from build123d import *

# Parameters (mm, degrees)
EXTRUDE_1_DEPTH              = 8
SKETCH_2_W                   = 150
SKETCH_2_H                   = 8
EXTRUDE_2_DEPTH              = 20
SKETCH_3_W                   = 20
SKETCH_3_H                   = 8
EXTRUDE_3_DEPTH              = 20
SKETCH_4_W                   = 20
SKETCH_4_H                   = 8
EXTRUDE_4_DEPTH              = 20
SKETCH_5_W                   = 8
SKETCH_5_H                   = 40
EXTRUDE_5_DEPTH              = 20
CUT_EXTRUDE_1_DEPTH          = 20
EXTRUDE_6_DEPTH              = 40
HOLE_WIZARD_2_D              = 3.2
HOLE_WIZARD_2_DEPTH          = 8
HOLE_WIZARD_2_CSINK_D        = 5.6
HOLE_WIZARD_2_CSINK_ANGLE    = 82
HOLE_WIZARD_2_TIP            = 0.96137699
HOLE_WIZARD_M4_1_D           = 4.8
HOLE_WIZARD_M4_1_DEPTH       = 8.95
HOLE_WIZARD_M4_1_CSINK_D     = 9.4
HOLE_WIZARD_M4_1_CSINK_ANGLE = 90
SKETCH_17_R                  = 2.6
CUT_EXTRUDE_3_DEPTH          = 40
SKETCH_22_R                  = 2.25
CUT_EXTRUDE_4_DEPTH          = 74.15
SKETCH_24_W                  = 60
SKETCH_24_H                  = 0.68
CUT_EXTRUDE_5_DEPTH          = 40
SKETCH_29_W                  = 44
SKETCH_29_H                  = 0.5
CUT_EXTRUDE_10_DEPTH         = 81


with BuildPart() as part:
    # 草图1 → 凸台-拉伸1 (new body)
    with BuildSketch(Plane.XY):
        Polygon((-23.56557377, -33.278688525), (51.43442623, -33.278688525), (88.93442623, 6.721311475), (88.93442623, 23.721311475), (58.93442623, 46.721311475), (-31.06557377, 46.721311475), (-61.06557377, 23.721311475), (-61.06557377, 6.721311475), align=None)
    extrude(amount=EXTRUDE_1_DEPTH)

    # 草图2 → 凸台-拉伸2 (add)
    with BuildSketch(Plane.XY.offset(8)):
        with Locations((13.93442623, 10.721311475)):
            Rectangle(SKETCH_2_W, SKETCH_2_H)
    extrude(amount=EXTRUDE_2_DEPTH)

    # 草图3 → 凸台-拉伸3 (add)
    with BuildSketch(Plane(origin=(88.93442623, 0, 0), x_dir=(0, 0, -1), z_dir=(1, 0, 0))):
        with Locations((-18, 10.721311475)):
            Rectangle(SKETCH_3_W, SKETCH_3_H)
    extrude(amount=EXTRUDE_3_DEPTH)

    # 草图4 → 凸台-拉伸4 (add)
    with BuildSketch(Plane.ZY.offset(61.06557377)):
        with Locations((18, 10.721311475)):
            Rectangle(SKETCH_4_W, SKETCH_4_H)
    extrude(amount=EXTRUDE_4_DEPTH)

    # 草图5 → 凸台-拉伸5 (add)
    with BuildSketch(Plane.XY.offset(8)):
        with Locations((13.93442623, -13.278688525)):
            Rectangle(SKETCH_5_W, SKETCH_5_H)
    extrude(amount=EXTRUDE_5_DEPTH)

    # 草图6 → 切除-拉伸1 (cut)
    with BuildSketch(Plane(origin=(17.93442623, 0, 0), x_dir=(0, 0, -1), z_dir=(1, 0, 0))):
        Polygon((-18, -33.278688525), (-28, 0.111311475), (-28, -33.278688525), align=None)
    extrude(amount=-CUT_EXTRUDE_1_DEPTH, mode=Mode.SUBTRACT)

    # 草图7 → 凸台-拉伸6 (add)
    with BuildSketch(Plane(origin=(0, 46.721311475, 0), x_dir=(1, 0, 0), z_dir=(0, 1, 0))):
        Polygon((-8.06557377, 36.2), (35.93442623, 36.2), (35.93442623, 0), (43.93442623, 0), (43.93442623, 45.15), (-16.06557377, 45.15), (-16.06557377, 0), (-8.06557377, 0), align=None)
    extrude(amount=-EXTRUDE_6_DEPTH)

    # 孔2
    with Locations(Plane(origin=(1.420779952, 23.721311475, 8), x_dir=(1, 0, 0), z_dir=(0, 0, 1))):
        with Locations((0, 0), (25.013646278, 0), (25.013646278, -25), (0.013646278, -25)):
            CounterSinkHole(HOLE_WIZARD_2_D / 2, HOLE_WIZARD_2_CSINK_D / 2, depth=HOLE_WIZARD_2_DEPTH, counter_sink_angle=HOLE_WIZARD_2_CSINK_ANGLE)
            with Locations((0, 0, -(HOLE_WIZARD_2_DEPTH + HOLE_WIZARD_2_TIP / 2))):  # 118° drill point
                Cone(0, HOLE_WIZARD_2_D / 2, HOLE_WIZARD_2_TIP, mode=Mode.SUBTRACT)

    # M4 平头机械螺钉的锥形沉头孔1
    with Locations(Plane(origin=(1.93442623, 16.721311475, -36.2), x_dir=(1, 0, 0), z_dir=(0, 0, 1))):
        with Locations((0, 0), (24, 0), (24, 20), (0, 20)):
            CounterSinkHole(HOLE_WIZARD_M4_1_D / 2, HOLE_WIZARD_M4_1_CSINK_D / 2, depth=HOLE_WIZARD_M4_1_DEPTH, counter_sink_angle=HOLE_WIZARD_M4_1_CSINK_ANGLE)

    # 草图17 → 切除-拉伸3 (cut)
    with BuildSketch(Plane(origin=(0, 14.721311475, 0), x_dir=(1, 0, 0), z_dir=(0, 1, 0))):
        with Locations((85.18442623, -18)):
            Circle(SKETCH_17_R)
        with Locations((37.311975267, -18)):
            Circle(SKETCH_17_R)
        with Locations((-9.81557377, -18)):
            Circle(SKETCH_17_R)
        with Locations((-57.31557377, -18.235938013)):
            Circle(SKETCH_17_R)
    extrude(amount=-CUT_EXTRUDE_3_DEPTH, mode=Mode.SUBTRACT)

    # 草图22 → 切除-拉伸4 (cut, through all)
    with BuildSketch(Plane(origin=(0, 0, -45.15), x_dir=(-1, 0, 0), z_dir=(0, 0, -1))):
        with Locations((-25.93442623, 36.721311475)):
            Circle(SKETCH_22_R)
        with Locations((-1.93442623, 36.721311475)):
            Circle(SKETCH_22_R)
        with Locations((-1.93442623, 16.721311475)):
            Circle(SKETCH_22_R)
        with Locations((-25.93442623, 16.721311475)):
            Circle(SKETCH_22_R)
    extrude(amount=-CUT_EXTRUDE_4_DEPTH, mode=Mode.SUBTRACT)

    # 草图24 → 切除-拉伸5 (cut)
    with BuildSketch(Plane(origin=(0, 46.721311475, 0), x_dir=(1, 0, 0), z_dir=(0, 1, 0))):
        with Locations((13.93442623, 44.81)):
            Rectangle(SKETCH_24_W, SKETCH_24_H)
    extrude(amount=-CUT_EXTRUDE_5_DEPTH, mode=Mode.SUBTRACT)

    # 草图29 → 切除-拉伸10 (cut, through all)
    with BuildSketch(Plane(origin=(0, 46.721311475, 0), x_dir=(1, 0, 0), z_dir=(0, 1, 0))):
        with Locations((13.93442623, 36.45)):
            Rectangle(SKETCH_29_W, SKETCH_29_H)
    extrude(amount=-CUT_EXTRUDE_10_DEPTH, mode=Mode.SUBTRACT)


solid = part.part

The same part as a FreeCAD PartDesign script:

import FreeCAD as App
import Part
import Sketcher

doc = App.newDocument("Part")
params = doc.addObject("Spreadsheet::Sheet", "Params")
for row, (alias, value) in enumerate([
    ("sketch1_width", "75 mm"),
    ("sketch1_width2", "90 mm"),
    ("sketch1_height", "17 mm"),
    ("pad1_length", "8 mm"),
    ("sketch2_width", "150 mm"),
    ("sketch2_height", "8 mm"),
    ("pad2_length", "20 mm"),
    ("sketch3_width", "8 mm"),
    ("sketch3_height", "20 mm"),
    ("pad3_length", "20 mm"),
    ("sketch4_width", "8 mm"),
    ("sketch4_height", "20 mm"),
    ("pad4_length", "20 mm"),
    ("sketch5_width", "8 mm"),
    ("sketch5_height", "40 mm"),
    ("pad5_length", "20 mm"),
    ("sketch6_height", "10 mm"),
    ("sketch6_width", "33.39 mm"),
    ("pocket1_length", "20 mm"),
    ("sketch7_width", "44 mm"),
    ("sketch7_width2", "8 mm"),
    ("sketch7_height", "36.2 mm"),
    ("sketch7_height2", "45.15 mm"),
    ("pad6_length", "40 mm"),
    ("sketch8_diameter", "3.2 mm"),
    ("hole_diameter", "3.2 mm"),
    ("hole_depth", "8 mm"),
    ("hole_csink_diameter", "5.6 mm"),
    ("sketch9_diameter", "4.8 mm"),
    ("hole2_diameter", "4.8 mm"),
    ("hole2_depth", "8.95 mm"),
    ("hole2_csink_diameter", "9.4 mm"),
    ("sketch10_diameter", "5.2 mm"),
    ("pocket2_length", "40 mm"),
    ("sketch11_diameter", "4.5 mm"),
    ("sketch12_width", "60 mm"),
    ("sketch12_height", "0.68 mm"),
    ("pocket4_length", "40 mm"),
    ("sketch13_width", "44 mm"),
    ("sketch13_height", "0.5 mm"),
], start=1):
    params.set(f"A{row}", alias)
    params.set(f"B{row}", "=" + value)
    params.setAlias(f"B{row}", alias)

body = doc.addObject("PartDesign::Body", "Body")

sketch1 = body.newObject("Sketcher::SketchObject", "Sketch")
sketch1.AttachmentSupport = (doc.getObject("XY_Plane"), [""])
sketch1.MapMode = "FlatFace"
sketch1.addGeometry(Part.LineSegment(App.Vector(-23.565574, -33.278689, 0), App.Vector(51.434426, -33.278689, 0)), False)
sketch1.addGeometry(Part.LineSegment(App.Vector(51.434426, -33.278689, 0), App.Vector(88.934426, 6.721311, 0)), False)
sketch1.addGeometry(Part.LineSegment(App.Vector(88.934426, 6.721311, 0), App.Vector(88.934426, 23.721311, 0)), False)
sketch1.addGeometry(Part.LineSegment(App.Vector(88.934426, 23.721311, 0), App.Vector(58.934426, 46.721311, 0)), False)
sketch1.addGeometry(Part.LineSegment(App.Vector(58.934426, 46.721311, 0), App.Vector(-31.065574, 46.721311, 0)), False)
sketch1.addGeometry(Part.LineSegment(App.Vector(-31.065574, 46.721311, 0), App.Vector(-61.065574, 23.721311, 0)), False)
sketch1.addGeometry(Part.LineSegment(App.Vector(-61.065574, 23.721311, 0), App.Vector(-61.065574, 6.721311, 0)), False)
sketch1.addGeometry(Part.LineSegment(App.Vector(-61.065574, 6.721311, 0), App.Vector(-23.565574, -33.278689, 0)), False)
sketch1.addConstraint(Sketcher.Constraint("Coincident", 0, 2, 1, 1))
sketch1.addConstraint(Sketcher.Constraint("Coincident", 1, 2, 2, 1))
sketch1.addConstraint(Sketcher.Constraint("Coincident", 2, 2, 3, 1))
sketch1.addConstraint(Sketcher.Constraint("Coincident", 3, 2, 4, 1))
sketch1.addConstraint(Sketcher.Constraint("Coincident", 4, 2, 5, 1))
sketch1.addConstraint(Sketcher.Constraint("Coincident", 5, 2, 6, 1))
sketch1.addConstraint(Sketcher.Constraint("Coincident", 6, 2, 7, 1))
sketch1.addConstraint(Sketcher.Constraint("Coincident", 7, 2, 0, 1))
sketch1.addConstraint(Sketcher.Constraint("Horizontal", 0))
sketch1.addConstraint(Sketcher.Constraint("Vertical", 2))
sketch1.addConstraint(Sketcher.Constraint("Horizontal", 4))
sketch1.addConstraint(Sketcher.Constraint("Vertical", 6))
sketch1.addConstraint(Sketcher.Constraint("Horizontal", 2, 2, 5, 2))
sketch1.addConstraint(Sketcher.Constraint("Horizontal", 1, 2, 6, 2))
sketch1.addConstraint(Sketcher.Constraint("Equal", 3, 5))
sketch1.addConstraint(Sketcher.Constraint("Equal", 1, 7))
sketch1.addConstraint(Sketcher.Constraint("DistanceX", 0, 1, 0, 2, 75.0))
sketch1.addConstraint(Sketcher.Constraint("DistanceX", 4, 2, 4, 1, 90.0))
sketch1.addConstraint(Sketcher.Constraint("DistanceY", 2, 1, 2, 2, 17.0))
sketch1.addConstraint(Sketcher.Constraint("DistanceY", 0, 2, 1, 2, 40.0))
sketch1.addConstraint(Sketcher.Constraint("DistanceX", 3, 2, 2, 2, 30.0))
sketch1.addConstraint(Sketcher.Constraint("DistanceY", 2, 2, 3, 2, 23.0))
sketch1.addConstraint(Sketcher.Constraint("DistanceY", 0, 2, -1, 1, 33.278689))
sketch1.addConstraint(Sketcher.Constraint("DistanceX", -1, 1, 0, 2, 51.434426))
sketch1.setExpression("Constraints[16]", "Params.sketch1_width")
sketch1.setExpression("Constraints[17]", "Params.sketch1_width2")
sketch1.setExpression("Constraints[18]", "Params.sketch1_height")
pad1 = body.newObject("PartDesign::Pad", "Pad")
pad1.Profile = sketch1
pad1.setExpression("Length", "Params.pad1_length")

sketch2 = body.newObject("Sketcher::SketchObject", "Sketch001")
sketch2.AttachmentSupport = (doc.getObject("XY_Plane"), [""])
sketch2.MapMode = "FlatFace"
sketch2.AttachmentOffset = App.Placement(App.Vector(0, 0, 8), App.Rotation())
sketch2.addGeometry(Part.LineSegment(App.Vector(-61.065574, 14.721311, 0), App.Vector(-61.065574, 6.721311, 0)), False)
sketch2.addGeometry(Part.LineSegment(App.Vector(-61.065574, 6.721311, 0), App.Vector(88.934426, 6.721311, 0)), False)
sketch2.addGeometry(Part.LineSegment(App.Vector(88.934426, 6.721311, 0), App.Vector(88.934426, 14.721311, 0)), False)
sketch2.addGeometry(Part.LineSegment(App.Vector(88.934426, 14.721311, 0), App.Vector(-61.065574, 14.721311, 0)), False)
sketch2.addConstraint(Sketcher.Constraint("Coincident", 0, 2, 1, 1))
sketch2.addConstraint(Sketcher.Constraint("Coincident", 1, 2, 2, 1))
sketch2.addConstraint(Sketcher.Constraint("Coincident", 2, 2, 3, 1))
sketch2.addConstraint(Sketcher.Constraint("Coincident", 3, 2, 0, 1))
sketch2.addConstraint(Sketcher.Constraint("Vertical", 0))
sketch2.addConstraint(Sketcher.Constraint("Horizontal", 1))
sketch2.addConstraint(Sketcher.Constraint("Vertical", 2))
sketch2.addConstraint(Sketcher.Constraint("Horizontal", 3))
sketch2.addConstraint(Sketcher.Constraint("DistanceX", 1, 1, 1, 2, 150.0))
sketch2.addConstraint(Sketcher.Constraint("DistanceY", 0, 2, 0, 1, 8.0))
sketch2.addConstraint(Sketcher.Constraint("DistanceY", -1, 1, 0, 2, 6.721311))
sketch2.addConstraint(Sketcher.Constraint("DistanceX", 0, 2, -1, 1, 61.065574))
sketch2.setExpression("Constraints[8]", "Params.sketch2_width")
sketch2.setExpression("Constraints[9]", "Params.sketch2_height")
pad2 = body.newObject("PartDesign::Pad", "Pad001")
pad2.Profile = sketch2
pad2.setExpression("Length", "Params.pad2_length")

sketch3 = body.newObject("Sketcher::SketchObject", "Sketch002")
sketch3.AttachmentSupport = (doc.getObject("YZ_Plane"), [""])
sketch3.MapMode = "FlatFace"
sketch3.AttachmentOffset = App.Placement(App.Vector(0, 0, 88.934426), App.Rotation())
sketch3.addGeometry(Part.LineSegment(App.Vector(14.721311, 28, 0), App.Vector(6.721311, 28, 0)), False)
sketch3.addGeometry(Part.LineSegment(App.Vector(6.721311, 28, 0), App.Vector(6.721311, 8, 0)), False)
sketch3.addGeometry(Part.LineSegment(App.Vector(6.721311, 8, 0), App.Vector(14.721311, 8, 0)), False)
sketch3.addGeometry(Part.LineSegment(App.Vector(14.721311, 8, 0), App.Vector(14.721311, 28, 0)), False)
sketch3.addConstraint(Sketcher.Constraint("Coincident", 0, 2, 1, 1))
sketch3.addConstraint(Sketcher.Constraint("Coincident", 1, 2, 2, 1))
sketch3.addConstraint(Sketcher.Constraint("Coincident", 2, 2, 3, 1))
sketch3.addConstraint(Sketcher.Constraint("Coincident", 3, 2, 0, 1))
sketch3.addConstraint(Sketcher.Constraint("Horizontal", 0))
sketch3.addConstraint(Sketcher.Constraint("Vertical", 1))
sketch3.addConstraint(Sketcher.Constraint("Horizontal", 2))
sketch3.addConstraint(Sketcher.Constraint("Vertical", 3))
sketch3.addConstraint(Sketcher.Constraint("DistanceX", 0, 2, 0, 1, 8.0))
sketch3.addConstraint(Sketcher.Constraint("DistanceY", 1, 2, 1, 1, 20.0))
sketch3.addConstraint(Sketcher.Constraint("DistanceY", -1, 1, 0, 2, 28.0))
sketch3.addConstraint(Sketcher.Constraint("DistanceX", -1, 1, 0, 2, 6.721311))
sketch3.setExpression("Constraints[8]", "Params.sketch3_width")
sketch3.setExpression("Constraints[9]", "Params.sketch3_height")
pad3 = body.newObject("PartDesign::Pad", "Pad002")
pad3.Profile = sketch3
pad3.setExpression("Length", "Params.pad3_length")

sketch4 = body.newObject("Sketcher::SketchObject", "Sketch003")
sketch4.AttachmentSupport = (doc.getObject("YZ_Plane"), [""])
sketch4.MapMode = "FlatFace"
sketch4.AttachmentOffset = App.Placement(App.Vector(0, 0, -61.065574), App.Rotation())
sketch4.addGeometry(Part.LineSegment(App.Vector(14.721311, 8, 0), App.Vector(6.721311, 8, 0)), False)
sketch4.addGeometry(Part.LineSegment(App.Vector(6.721311, 8, 0), App.Vector(6.721311, 28, 0)), False)
sketch4.addGeometry(Part.LineSegment(App.Vector(6.721311, 28, 0), App.Vector(14.721311, 28, 0)), False)
sketch4.addGeometry(Part.LineSegment(App.Vector(14.721311, 28, 0), App.Vector(14.721311, 8, 0)), False)
sketch4.addConstraint(Sketcher.Constraint("Coincident", 0, 2, 1, 1))
sketch4.addConstraint(Sketcher.Constraint("Coincident", 1, 2, 2, 1))
sketch4.addConstraint(Sketcher.Constraint("Coincident", 2, 2, 3, 1))
sketch4.addConstraint(Sketcher.Constraint("Coincident", 3, 2, 0, 1))
sketch4.addConstraint(Sketcher.Constraint("Horizontal", 0))
sketch4.addConstraint(Sketcher.Constraint("Vertical", 1))
sketch4.addConstraint(Sketcher.Constraint("Horizontal", 2))
sketch4.addConstraint(Sketcher.Constraint("Vertical", 3))
sketch4.addConstraint(Sketcher.Constraint("DistanceX", 0, 2, 0, 1, 8.0))
sketch4.addConstraint(Sketcher.Constraint("DistanceY", 1, 1, 1, 2, 20.0))
sketch4.addConstraint(Sketcher.Constraint("DistanceY", -1, 1, 0, 2, 8.0))
sketch4.addConstraint(Sketcher.Constraint("DistanceX", -1, 1, 0, 2, 6.721311))
sketch4.setExpression("Constraints[8]", "Params.sketch4_width")
sketch4.setExpression("Constraints[9]", "Params.sketch4_height")
pad4 = body.newObject("PartDesign::Pad", "Pad003")
pad4.Profile = sketch4
pad4.setExpression("Length", "Params.pad4_length")
pad4.Reversed = True

sketch5 = body.newObject("Sketcher::SketchObject", "Sketch004")
sketch5.AttachmentSupport = (doc.getObject("XY_Plane"), [""])
sketch5.MapMode = "FlatFace"
sketch5.AttachmentOffset = App.Placement(App.Vector(0, 0, 8), App.Rotation())
sketch5.addGeometry(Part.LineSegment(App.Vector(9.934426, 6.721311, 0), App.Vector(9.934426, -33.278689, 0)), False)
sketch5.addGeometry(Part.LineSegment(App.Vector(9.934426, -33.278689, 0), App.Vector(17.934426, -33.278689, 0)), False)
sketch5.addGeometry(Part.LineSegment(App.Vector(17.934426, -33.278689, 0), App.Vector(17.934426, 6.721311, 0)), False)
sketch5.addGeometry(Part.LineSegment(App.Vector(17.934426, 6.721311, 0), App.Vector(9.934426, 6.721311, 0)), False)
sketch5.addConstraint(Sketcher.Constraint("Coincident", 0, 2, 1, 1))
sketch5.addConstraint(Sketcher.Constraint("Coincident", 1, 2, 2, 1))
sketch5.addConstraint(Sketcher.Constraint("Coincident", 2, 2, 3, 1))
sketch5.addConstraint(Sketcher.Constraint("Coincident", 3, 2, 0, 1))
sketch5.addConstraint(Sketcher.Constraint("Vertical", 0))
sketch5.addConstraint(Sketcher.Constraint("Horizontal", 1))
sketch5.addConstraint(Sketcher.Constraint("Vertical", 2))
sketch5.addConstraint(Sketcher.Constraint("Horizontal", 3))
sketch5.addConstraint(Sketcher.Constraint("DistanceX", 1, 1, 1, 2, 8.0))
sketch5.addConstraint(Sketcher.Constraint("DistanceY", 0, 2, 0, 1, 40.0))
sketch5.addConstraint(Sketcher.Constraint("DistanceY", 0, 2, -1, 1, 33.278689))
sketch5.addConstraint(Sketcher.Constraint("DistanceX", -1, 1, 0, 2, 9.934426))
sketch5.setExpression("Constraints[8]", "Params.sketch5_width")
sketch5.setExpression("Constraints[9]", "Params.sketch5_height")
pad5 = body.newObject("PartDesign::Pad", "Pad004")
pad5.Profile = sketch5
pad5.setExpression("Length", "Params.pad5_length")

sketch6 = body.newObject("Sketcher::SketchObject", "Sketch005")
sketch6.AttachmentSupport = (doc.getObject("YZ_Plane"), [""])
sketch6.MapMode = "FlatFace"
sketch6.AttachmentOffset = App.Placement(App.Vector(0, 0, 17.934426), App.Rotation())
sketch6.addGeometry(Part.LineSegment(App.Vector(-33.278689, 18, 0), App.Vector(0.111311, 28, 0)), False)
sketch6.addGeometry(Part.LineSegment(App.Vector(0.111311, 28, 0), App.Vector(-33.278689, 28, 0)), False)
sketch6.addGeometry(Part.LineSegment(App.Vector(-33.278689, 28, 0), App.Vector(-33.278689, 18, 0)), False)
sketch6.addConstraint(Sketcher.Constraint("Coincident", 0, 2, 1, 1))
sketch6.addConstraint(Sketcher.Constraint("Coincident", 1, 2, 2, 1))
sketch6.addConstraint(Sketcher.Constraint("Coincident", 2, 2, 0, 1))
sketch6.addConstraint(Sketcher.Constraint("Horizontal", 1))
sketch6.addConstraint(Sketcher.Constraint("Vertical", 2))
sketch6.addConstraint(Sketcher.Constraint("DistanceY", 2, 2, 2, 1, 10.0))
sketch6.addConstraint(Sketcher.Constraint("DistanceY", -1, 1, 0, 2, 28.0))
sketch6.addConstraint(Sketcher.Constraint("DistanceX", 1, 2, 1, 1, 33.39))
sketch6.addConstraint(Sketcher.Constraint("DistanceX", -1, 1, 0, 2, 0.111311))
sketch6.setExpression("Constraints[5]", "Params.sketch6_height")
sketch6.setExpression("Constraints[7]", "Params.sketch6_width")
pocket1 = body.newObject("PartDesign::Pocket", "Pocket")
pocket1.Profile = sketch6
pocket1.setExpression("Length", "Params.pocket1_length")

sketch7 = body.newObject("Sketcher::SketchObject", "Sketch006")
sketch7.AttachmentSupport = (doc.getObject("XZ_Plane"), [""])
sketch7.MapMode = "FlatFace"
sketch7.AttachmentOffset = App.Placement(App.Vector(0, 0, -46.721311), App.Rotation())
sketch7.addGeometry(Part.LineSegment(App.Vector(-8.065574, -36.2, 0), App.Vector(35.934426, -36.2, 0)), False)
sketch7.addGeometry(Part.LineSegment(App.Vector(35.934426, -36.2, 0), App.Vector(35.934426, 0, 0)), False)
sketch7.addGeometry(Part.LineSegment(App.Vector(35.934426, 0, 0), App.Vector(43.934426, 0, 0)), False)
sketch7.addGeometry(Part.LineSegment(App.Vector(43.934426, 0, 0), App.Vector(43.934426, -45.15, 0)), False)
sketch7.addGeometry(Part.LineSegment(App.Vector(43.934426, -45.15, 0), App.Vector(-16.065574, -45.15, 0)), False)
sketch7.addGeometry(Part.LineSegment(App.Vector(-16.065574, -45.15, 0), App.Vector(-16.065574, 0, 0)), False)
sketch7.addGeometry(Part.LineSegment(App.Vector(-16.065574, 0, 0), App.Vector(-8.065574, 0, 0)), False)
sketch7.addGeometry(Part.LineSegment(App.Vector(-8.065574, 0, 0), App.Vector(-8.065574, -36.2, 0)), False)
sketch7.addConstraint(Sketcher.Constraint("Coincident", 0, 2, 1, 1))
sketch7.addConstraint(Sketcher.Constraint("Coincident", 1, 2, 2, 1))
sketch7.addConstraint(Sketcher.Constraint("Coincident", 2, 2, 3, 1))
sketch7.addConstraint(Sketcher.Constraint("Coincident", 3, 2, 4, 1))
sketch7.addConstraint(Sketcher.Constraint("Coincident", 4, 2, 5, 1))
sketch7.addConstraint(Sketcher.Constraint("Coincident", 5, 2, 6, 1))
sketch7.addConstraint(Sketcher.Constraint("Coincident", 6, 2, 7, 1))
sketch7.addConstraint(Sketcher.Constraint("Coincident", 7, 2, 0, 1))
sketch7.addConstraint(Sketcher.Constraint("Horizontal", 0))
sketch7.addConstraint(Sketcher.Constraint("Vertical", 1))
sketch7.addConstraint(Sketcher.Constraint("Horizontal", 2))
sketch7.addConstraint(Sketcher.Constraint("Vertical", 3))
sketch7.addConstraint(Sketcher.Constraint("Horizontal", 4))
sketch7.addConstraint(Sketcher.Constraint("Vertical", 5))
sketch7.addConstraint(Sketcher.Constraint("Horizontal", 6))
sketch7.addConstraint(Sketcher.Constraint("Vertical", 7))
sketch7.addConstraint(Sketcher.Constraint("PointOnObject", 1, 2, -1))
sketch7.addConstraint(Sketcher.Constraint("PointOnObject", 5, 2, -1))
sketch7.addConstraint(Sketcher.Constraint("Equal", 2, 6))
sketch7.addConstraint(Sketcher.Constraint("DistanceX", 0, 1, 0, 2, 44.0))
sketch7.addConstraint(Sketcher.Constraint("DistanceX", 2, 1, 2, 2, 8.0))
sketch7.addConstraint(Sketcher.Constraint("DistanceY", 1, 1, 1, 2, 36.2))
sketch7.addConstraint(Sketcher.Constraint("DistanceY", 3, 2, 3, 1, 45.15))
sketch7.addConstraint(Sketcher.Constraint("DistanceX", -1, 1, 0, 2, 35.934426))
sketch7.setExpression("Constraints[19]", "Params.sketch7_width")
sketch7.setExpression("Constraints[20]", "Params.sketch7_width2")
sketch7.setExpression("Constraints[21]", "Params.sketch7_height")
sketch7.setExpression("Constraints[22]", "Params.sketch7_height2")
pad6 = body.newObject("PartDesign::Pad", "Pad005")
pad6.Profile = sketch7
pad6.setExpression("Length", "Params.pad6_length")

sketch8 = body.newObject("Sketcher::SketchObject", "Sketch007")
sketch8.AttachmentSupport = (doc.getObject("XY_Plane"), [""])
sketch8.MapMode = "FlatFace"
sketch8.AttachmentOffset = App.Placement(App.Vector(0, 0, 8), App.Rotation())
sketch8.addGeometry(Part.Circle(App.Vector(1.42078, 23.721311, 0), App.Vector(0, 0, 1), 1.6), False)
sketch8.addGeometry(Part.Circle(App.Vector(26.434426, 23.721311, 0), App.Vector(0, 0, 1), 1.6), False)
sketch8.addGeometry(Part.Circle(App.Vector(26.434426, -1.278689, 0), App.Vector(0, 0, 1), 1.6), False)
sketch8.addGeometry(Part.Circle(App.Vector(1.434426, -1.278689, 0), App.Vector(0, 0, 1), 1.6), False)
sketch8.addConstraint(Sketcher.Constraint("Equal", 0, 1))
sketch8.addConstraint(Sketcher.Constraint("Equal", 1, 2))
sketch8.addConstraint(Sketcher.Constraint("Equal", 2, 3))
sketch8.addConstraint(Sketcher.Constraint("Horizontal", 0, 3, 1, 3))
sketch8.addConstraint(Sketcher.Constraint("Horizontal", 2, 3, 3, 3))
sketch8.addConstraint(Sketcher.Constraint("Vertical", 1, 3, 2, 3))
sketch8.addConstraint(Sketcher.Constraint("Diameter", 0, 3.2))
sketch8.addConstraint(Sketcher.Constraint("DistanceY", 2, 3, 1, 3, 25.0))
sketch8.addConstraint(Sketcher.Constraint("DistanceX", 3, 3, 2, 3, 25.0))
sketch8.addConstraint(Sketcher.Constraint("DistanceX", -1, 1, 0, 3, 1.42078))
sketch8.addConstraint(Sketcher.Constraint("DistanceY", -1, 1, 0, 3, 23.721311))
sketch8.addConstraint(Sketcher.Constraint("DistanceX", -1, 1, 1, 3, 26.434426))
sketch8.setExpression("Constraints[6]", "Params.sketch8_diameter")
doc.recompute()
hole = body.newObject("PartDesign::Hole", "Hole")
hole.Profile = sketch8
hole.ThreadType = "None"
hole.setExpression("Diameter", "Params.hole_diameter")
hole.DepthType = "Dimension"
hole.setExpression("Depth", "Params.hole_depth")
hole.DrillPoint = "Angled"
hole.DrillPointAngle = 118
hole.HoleCutType = "Countersink"
hole.setExpression("HoleCutDiameter", "Params.hole_csink_diameter")
hole.HoleCutCountersinkAngle = 82

sketch9 = body.newObject("Sketcher::SketchObject", "Sketch008")
sketch9.AttachmentSupport = (doc.getObject("XY_Plane"), [""])
sketch9.MapMode = "FlatFace"
sketch9.AttachmentOffset = App.Placement(App.Vector(0, 0, -36.2), App.Rotation())
sketch9.addGeometry(Part.Circle(App.Vector(1.934426, 16.721311, 0), App.Vector(0, 0, 1), 2.4), False)
sketch9.addGeometry(Part.Circle(App.Vector(25.934426, 16.721311, 0), App.Vector(0, 0, 1), 2.4), False)
sketch9.addGeometry(Part.Circle(App.Vector(25.934426, 36.721311, 0), App.Vector(0, 0, 1), 2.4), False)
sketch9.addGeometry(Part.Circle(App.Vector(1.934426, 36.721311, 0), App.Vector(0, 0, 1), 2.4), False)
sketch9.addConstraint(Sketcher.Constraint("Equal", 0, 1))
sketch9.addConstraint(Sketcher.Constraint("Equal", 1, 2))
sketch9.addConstraint(Sketcher.Constraint("Equal", 2, 3))
sketch9.addConstraint(Sketcher.Constraint("Horizontal", 0, 3, 1, 3))
sketch9.addConstraint(Sketcher.Constraint("Horizontal", 2, 3, 3, 3))
sketch9.addConstraint(Sketcher.Constraint("Vertical", 1, 3, 2, 3))
sketch9.addConstraint(Sketcher.Constraint("Vertical", 0, 3, 3, 3))
sketch9.addConstraint(Sketcher.Constraint("Diameter", 0, 4.8))
sketch9.addConstraint(Sketcher.Constraint("DistanceX", 0, 3, 1, 3, 24.0))
sketch9.addConstraint(Sketcher.Constraint("DistanceY", 1, 3, 2, 3, 20.0))
sketch9.addConstraint(Sketcher.Constraint("DistanceY", -1, 1, 0, 3, 16.721311))
sketch9.addConstraint(Sketcher.Constraint("DistanceX", -1, 1, 0, 3, 1.934426))
sketch9.setExpression("Constraints[7]", "Params.sketch9_diameter")
doc.recompute()
hole2 = body.newObject("PartDesign::Hole", "Hole001")
hole2.Profile = sketch9
hole2.ThreadType = "None"
hole2.setExpression("Diameter", "Params.hole2_diameter")
hole2.DepthType = "Dimension"
hole2.setExpression("Depth", "Params.hole2_depth")
hole2.DrillPoint = "Flat"
hole2.HoleCutType = "Countersink"
hole2.setExpression("HoleCutDiameter", "Params.hole2_csink_diameter")
hole2.HoleCutCountersinkAngle = 90

sketch10 = body.newObject("Sketcher::SketchObject", "Sketch009")
sketch10.AttachmentSupport = (doc.getObject("XZ_Plane"), [""])
sketch10.MapMode = "FlatFace"
sketch10.AttachmentOffset = App.Placement(App.Vector(0, 0, -14.721311), App.Rotation())
sketch10.addGeometry(Part.Circle(App.Vector(85.184426, 18, 0), App.Vector(0, 0, 1), 2.6), False)
sketch10.addGeometry(Part.Circle(App.Vector(37.311975, 18, 0), App.Vector(0, 0, 1), 2.6), False)
sketch10.addGeometry(Part.Circle(App.Vector(-9.815574, 18, 0), App.Vector(0, 0, 1), 2.6), False)
sketch10.addGeometry(Part.Circle(App.Vector(-57.315574, 18.235938, 0), App.Vector(0, 0, 1), 2.6), False)
sketch10.addConstraint(Sketcher.Constraint("Equal", 0, 1))
sketch10.addConstraint(Sketcher.Constraint("Equal", 1, 2))
sketch10.addConstraint(Sketcher.Constraint("Equal", 2, 3))
sketch10.addConstraint(Sketcher.Constraint("Horizontal", 0, 3, 1, 3))
sketch10.addConstraint(Sketcher.Constraint("Horizontal", 1, 3, 2, 3))
sketch10.addConstraint(Sketcher.Constraint("Diameter", 0, 5.2))
sketch10.addConstraint(Sketcher.Constraint("DistanceY", -1, 1, 0, 3, 18.0))
sketch10.addConstraint(Sketcher.Constraint("DistanceX", 2, 3, 0, 3, 95.0))
sketch10.addConstraint(Sketcher.Constraint("DistanceX", 3, 3, 2, 3, 47.5))
sketch10.addConstraint(Sketcher.Constraint("DistanceY", -1, 1, 3, 3, 18.235938))
sketch10.addConstraint(Sketcher.Constraint("DistanceX", 1, 3, 0, 3, 47.872451))
sketch10.addConstraint(Sketcher.Constraint("DistanceX", -1, 1, 0, 3, 85.184426))
sketch10.setExpression("Constraints[5]", "Params.sketch10_diameter")
pocket2 = body.newObject("PartDesign::Pocket", "Pocket001")
pocket2.Profile = sketch10
pocket2.setExpression("Length", "Params.pocket2_length")
pocket2.Reversed = True

sketch11 = body.newObject("Sketcher::SketchObject", "Sketch010")
sketch11.AttachmentSupport = (doc.getObject("XY_Plane"), [""])
sketch11.MapMode = "FlatFace"
sketch11.AttachmentOffset = App.Placement(App.Vector(0, 0, -45.15), App.Rotation())
sketch11.addGeometry(Part.Circle(App.Vector(25.934426, 36.721311, 0), App.Vector(0, 0, 1), 2.25), False)
sketch11.addGeometry(Part.Circle(App.Vector(1.934426, 36.721311, 0), App.Vector(0, 0, 1), 2.25), False)
sketch11.addGeometry(Part.Circle(App.Vector(1.934426, 16.721311, 0), App.Vector(0, 0, 1), 2.25), False)
sketch11.addGeometry(Part.Circle(App.Vector(25.934426, 16.721311, 0), App.Vector(0, 0, 1), 2.25), False)
sketch11.addConstraint(Sketcher.Constraint("Equal", 0, 1))
sketch11.addConstraint(Sketcher.Constraint("Equal", 1, 2))
sketch11.addConstraint(Sketcher.Constraint("Equal", 2, 3))
sketch11.addConstraint(Sketcher.Constraint("Horizontal", 0, 3, 1, 3))
sketch11.addConstraint(Sketcher.Constraint("Horizontal", 2, 3, 3, 3))
sketch11.addConstraint(Sketcher.Constraint("Vertical", 1, 3, 2, 3))
sketch11.addConstraint(Sketcher.Constraint("Vertical", 0, 3, 3, 3))
sketch11.addConstraint(Sketcher.Constraint("Diameter", 0, 4.5))
sketch11.addConstraint(Sketcher.Constraint("DistanceX", 1, 3, 0, 3, 24.0))
sketch11.addConstraint(Sketcher.Constraint("DistanceY", 2, 3, 1, 3, 20.0))
sketch11.addConstraint(Sketcher.Constraint("DistanceY", -1, 1, 0, 3, 36.721311))
sketch11.addConstraint(Sketcher.Constraint("DistanceX", -1, 1, 0, 3, 25.934426))
sketch11.setExpression("Constraints[7]", "Params.sketch11_diameter")
pocket3 = body.newObject("PartDesign::Pocket", "Pocket002")
pocket3.Profile = sketch11
pocket3.Type = "ThroughAll"
pocket3.Reversed = True

sketch12 = body.newObject("Sketcher::SketchObject", "Sketch011")
sketch12.AttachmentSupport = (doc.getObject("XZ_Plane"), [""])
sketch12.MapMode = "FlatFace"
sketch12.AttachmentOffset = App.Placement(App.Vector(0, 0, -46.721311), App.Rotation())
sketch12.addGeometry(Part.LineSegment(App.Vector(-16.065574, -45.15, 0), App.Vector(-16.065574, -44.47, 0)), False)
sketch12.addGeometry(Part.LineSegment(App.Vector(-16.065574, -44.47, 0), App.Vector(43.934426, -44.47, 0)), False)
sketch12.addGeometry(Part.LineSegment(App.Vector(43.934426, -44.47, 0), App.Vector(43.934426, -45.15, 0)), False)
sketch12.addGeometry(Part.LineSegment(App.Vector(43.934426, -45.15, 0), App.Vector(-16.065574, -45.15, 0)), False)
sketch12.addConstraint(Sketcher.Constraint("Coincident", 0, 2, 1, 1))
sketch12.addConstraint(Sketcher.Constraint("Coincident", 1, 2, 2, 1))
sketch12.addConstraint(Sketcher.Constraint("Coincident", 2, 2, 3, 1))
sketch12.addConstraint(Sketcher.Constraint("Coincident", 3, 2, 0, 1))
sketch12.addConstraint(Sketcher.Constraint("Vertical", 0))
sketch12.addConstraint(Sketcher.Constraint("Horizontal", 1))
sketch12.addConstraint(Sketcher.Constraint("Vertical", 2))
sketch12.addConstraint(Sketcher.Constraint("Horizontal", 3))
sketch12.addConstraint(Sketcher.Constraint("DistanceX", 1, 1, 1, 2, 60.0))
sketch12.addConstraint(Sketcher.Constraint("DistanceY", 0, 1, 0, 2, 0.68))
sketch12.addConstraint(Sketcher.Constraint("DistanceY", 0, 2, -1, 1, 44.47))
sketch12.addConstraint(Sketcher.Constraint("DistanceX", 0, 2, -1, 1, 16.065574))
sketch12.setExpression("Constraints[8]", "Params.sketch12_width")
sketch12.setExpression("Constraints[9]", "Params.sketch12_height")
pocket4 = body.newObject("PartDesign::Pocket", "Pocket003")
pocket4.Profile = sketch12
pocket4.setExpression("Length", "Params.pocket4_length")
pocket4.Reversed = True

sketch13 = body.newObject("Sketcher::SketchObject", "Sketch012")
sketch13.AttachmentSupport = (doc.getObject("XZ_Plane"), [""])
sketch13.MapMode = "FlatFace"
sketch13.AttachmentOffset = App.Placement(App.Vector(0, 0, -46.721311), App.Rotation())
sketch13.addGeometry(Part.LineSegment(App.Vector(-8.065574, -36.7, 0), App.Vector(-8.065574, -36.2, 0)), False)
sketch13.addGeometry(Part.LineSegment(App.Vector(-8.065574, -36.2, 0), App.Vector(35.934426, -36.2, 0)), False)
sketch13.addGeometry(Part.LineSegment(App.Vector(35.934426, -36.2, 0), App.Vector(35.934426, -36.7, 0)), False)
sketch13.addGeometry(Part.LineSegment(App.Vector(35.934426, -36.7, 0), App.Vector(-8.065574, -36.7, 0)), False)
sketch13.addConstraint(Sketcher.Constraint("Coincident", 0, 2, 1, 1))
sketch13.addConstraint(Sketcher.Constraint("Coincident", 1, 2, 2, 1))
sketch13.addConstraint(Sketcher.Constraint("Coincident", 2, 2, 3, 1))
sketch13.addConstraint(Sketcher.Constraint("Coincident", 3, 2, 0, 1))
sketch13.addConstraint(Sketcher.Constraint("Vertical", 0))
sketch13.addConstraint(Sketcher.Constraint("Horizontal", 1))
sketch13.addConstraint(Sketcher.Constraint("Vertical", 2))
sketch13.addConstraint(Sketcher.Constraint("Horizontal", 3))
sketch13.addConstraint(Sketcher.Constraint("DistanceX", 1, 1, 1, 2, 44.0))
sketch13.addConstraint(Sketcher.Constraint("DistanceY", 0, 1, 0, 2, 0.5))
sketch13.addConstraint(Sketcher.Constraint("DistanceY", 0, 2, -1, 1, 36.2))
sketch13.addConstraint(Sketcher.Constraint("DistanceX", 0, 2, -1, 1, 8.065574))
sketch13.setExpression("Constraints[8]", "Params.sketch13_width")
sketch13.setExpression("Constraints[9]", "Params.sketch13_height")
pocket5 = body.newObject("PartDesign::Pocket", "Pocket004")
pocket5.Profile = sketch13
pocket5.Type = "ThroughAll"
pocket5.Reversed = True

doc.recompute()
